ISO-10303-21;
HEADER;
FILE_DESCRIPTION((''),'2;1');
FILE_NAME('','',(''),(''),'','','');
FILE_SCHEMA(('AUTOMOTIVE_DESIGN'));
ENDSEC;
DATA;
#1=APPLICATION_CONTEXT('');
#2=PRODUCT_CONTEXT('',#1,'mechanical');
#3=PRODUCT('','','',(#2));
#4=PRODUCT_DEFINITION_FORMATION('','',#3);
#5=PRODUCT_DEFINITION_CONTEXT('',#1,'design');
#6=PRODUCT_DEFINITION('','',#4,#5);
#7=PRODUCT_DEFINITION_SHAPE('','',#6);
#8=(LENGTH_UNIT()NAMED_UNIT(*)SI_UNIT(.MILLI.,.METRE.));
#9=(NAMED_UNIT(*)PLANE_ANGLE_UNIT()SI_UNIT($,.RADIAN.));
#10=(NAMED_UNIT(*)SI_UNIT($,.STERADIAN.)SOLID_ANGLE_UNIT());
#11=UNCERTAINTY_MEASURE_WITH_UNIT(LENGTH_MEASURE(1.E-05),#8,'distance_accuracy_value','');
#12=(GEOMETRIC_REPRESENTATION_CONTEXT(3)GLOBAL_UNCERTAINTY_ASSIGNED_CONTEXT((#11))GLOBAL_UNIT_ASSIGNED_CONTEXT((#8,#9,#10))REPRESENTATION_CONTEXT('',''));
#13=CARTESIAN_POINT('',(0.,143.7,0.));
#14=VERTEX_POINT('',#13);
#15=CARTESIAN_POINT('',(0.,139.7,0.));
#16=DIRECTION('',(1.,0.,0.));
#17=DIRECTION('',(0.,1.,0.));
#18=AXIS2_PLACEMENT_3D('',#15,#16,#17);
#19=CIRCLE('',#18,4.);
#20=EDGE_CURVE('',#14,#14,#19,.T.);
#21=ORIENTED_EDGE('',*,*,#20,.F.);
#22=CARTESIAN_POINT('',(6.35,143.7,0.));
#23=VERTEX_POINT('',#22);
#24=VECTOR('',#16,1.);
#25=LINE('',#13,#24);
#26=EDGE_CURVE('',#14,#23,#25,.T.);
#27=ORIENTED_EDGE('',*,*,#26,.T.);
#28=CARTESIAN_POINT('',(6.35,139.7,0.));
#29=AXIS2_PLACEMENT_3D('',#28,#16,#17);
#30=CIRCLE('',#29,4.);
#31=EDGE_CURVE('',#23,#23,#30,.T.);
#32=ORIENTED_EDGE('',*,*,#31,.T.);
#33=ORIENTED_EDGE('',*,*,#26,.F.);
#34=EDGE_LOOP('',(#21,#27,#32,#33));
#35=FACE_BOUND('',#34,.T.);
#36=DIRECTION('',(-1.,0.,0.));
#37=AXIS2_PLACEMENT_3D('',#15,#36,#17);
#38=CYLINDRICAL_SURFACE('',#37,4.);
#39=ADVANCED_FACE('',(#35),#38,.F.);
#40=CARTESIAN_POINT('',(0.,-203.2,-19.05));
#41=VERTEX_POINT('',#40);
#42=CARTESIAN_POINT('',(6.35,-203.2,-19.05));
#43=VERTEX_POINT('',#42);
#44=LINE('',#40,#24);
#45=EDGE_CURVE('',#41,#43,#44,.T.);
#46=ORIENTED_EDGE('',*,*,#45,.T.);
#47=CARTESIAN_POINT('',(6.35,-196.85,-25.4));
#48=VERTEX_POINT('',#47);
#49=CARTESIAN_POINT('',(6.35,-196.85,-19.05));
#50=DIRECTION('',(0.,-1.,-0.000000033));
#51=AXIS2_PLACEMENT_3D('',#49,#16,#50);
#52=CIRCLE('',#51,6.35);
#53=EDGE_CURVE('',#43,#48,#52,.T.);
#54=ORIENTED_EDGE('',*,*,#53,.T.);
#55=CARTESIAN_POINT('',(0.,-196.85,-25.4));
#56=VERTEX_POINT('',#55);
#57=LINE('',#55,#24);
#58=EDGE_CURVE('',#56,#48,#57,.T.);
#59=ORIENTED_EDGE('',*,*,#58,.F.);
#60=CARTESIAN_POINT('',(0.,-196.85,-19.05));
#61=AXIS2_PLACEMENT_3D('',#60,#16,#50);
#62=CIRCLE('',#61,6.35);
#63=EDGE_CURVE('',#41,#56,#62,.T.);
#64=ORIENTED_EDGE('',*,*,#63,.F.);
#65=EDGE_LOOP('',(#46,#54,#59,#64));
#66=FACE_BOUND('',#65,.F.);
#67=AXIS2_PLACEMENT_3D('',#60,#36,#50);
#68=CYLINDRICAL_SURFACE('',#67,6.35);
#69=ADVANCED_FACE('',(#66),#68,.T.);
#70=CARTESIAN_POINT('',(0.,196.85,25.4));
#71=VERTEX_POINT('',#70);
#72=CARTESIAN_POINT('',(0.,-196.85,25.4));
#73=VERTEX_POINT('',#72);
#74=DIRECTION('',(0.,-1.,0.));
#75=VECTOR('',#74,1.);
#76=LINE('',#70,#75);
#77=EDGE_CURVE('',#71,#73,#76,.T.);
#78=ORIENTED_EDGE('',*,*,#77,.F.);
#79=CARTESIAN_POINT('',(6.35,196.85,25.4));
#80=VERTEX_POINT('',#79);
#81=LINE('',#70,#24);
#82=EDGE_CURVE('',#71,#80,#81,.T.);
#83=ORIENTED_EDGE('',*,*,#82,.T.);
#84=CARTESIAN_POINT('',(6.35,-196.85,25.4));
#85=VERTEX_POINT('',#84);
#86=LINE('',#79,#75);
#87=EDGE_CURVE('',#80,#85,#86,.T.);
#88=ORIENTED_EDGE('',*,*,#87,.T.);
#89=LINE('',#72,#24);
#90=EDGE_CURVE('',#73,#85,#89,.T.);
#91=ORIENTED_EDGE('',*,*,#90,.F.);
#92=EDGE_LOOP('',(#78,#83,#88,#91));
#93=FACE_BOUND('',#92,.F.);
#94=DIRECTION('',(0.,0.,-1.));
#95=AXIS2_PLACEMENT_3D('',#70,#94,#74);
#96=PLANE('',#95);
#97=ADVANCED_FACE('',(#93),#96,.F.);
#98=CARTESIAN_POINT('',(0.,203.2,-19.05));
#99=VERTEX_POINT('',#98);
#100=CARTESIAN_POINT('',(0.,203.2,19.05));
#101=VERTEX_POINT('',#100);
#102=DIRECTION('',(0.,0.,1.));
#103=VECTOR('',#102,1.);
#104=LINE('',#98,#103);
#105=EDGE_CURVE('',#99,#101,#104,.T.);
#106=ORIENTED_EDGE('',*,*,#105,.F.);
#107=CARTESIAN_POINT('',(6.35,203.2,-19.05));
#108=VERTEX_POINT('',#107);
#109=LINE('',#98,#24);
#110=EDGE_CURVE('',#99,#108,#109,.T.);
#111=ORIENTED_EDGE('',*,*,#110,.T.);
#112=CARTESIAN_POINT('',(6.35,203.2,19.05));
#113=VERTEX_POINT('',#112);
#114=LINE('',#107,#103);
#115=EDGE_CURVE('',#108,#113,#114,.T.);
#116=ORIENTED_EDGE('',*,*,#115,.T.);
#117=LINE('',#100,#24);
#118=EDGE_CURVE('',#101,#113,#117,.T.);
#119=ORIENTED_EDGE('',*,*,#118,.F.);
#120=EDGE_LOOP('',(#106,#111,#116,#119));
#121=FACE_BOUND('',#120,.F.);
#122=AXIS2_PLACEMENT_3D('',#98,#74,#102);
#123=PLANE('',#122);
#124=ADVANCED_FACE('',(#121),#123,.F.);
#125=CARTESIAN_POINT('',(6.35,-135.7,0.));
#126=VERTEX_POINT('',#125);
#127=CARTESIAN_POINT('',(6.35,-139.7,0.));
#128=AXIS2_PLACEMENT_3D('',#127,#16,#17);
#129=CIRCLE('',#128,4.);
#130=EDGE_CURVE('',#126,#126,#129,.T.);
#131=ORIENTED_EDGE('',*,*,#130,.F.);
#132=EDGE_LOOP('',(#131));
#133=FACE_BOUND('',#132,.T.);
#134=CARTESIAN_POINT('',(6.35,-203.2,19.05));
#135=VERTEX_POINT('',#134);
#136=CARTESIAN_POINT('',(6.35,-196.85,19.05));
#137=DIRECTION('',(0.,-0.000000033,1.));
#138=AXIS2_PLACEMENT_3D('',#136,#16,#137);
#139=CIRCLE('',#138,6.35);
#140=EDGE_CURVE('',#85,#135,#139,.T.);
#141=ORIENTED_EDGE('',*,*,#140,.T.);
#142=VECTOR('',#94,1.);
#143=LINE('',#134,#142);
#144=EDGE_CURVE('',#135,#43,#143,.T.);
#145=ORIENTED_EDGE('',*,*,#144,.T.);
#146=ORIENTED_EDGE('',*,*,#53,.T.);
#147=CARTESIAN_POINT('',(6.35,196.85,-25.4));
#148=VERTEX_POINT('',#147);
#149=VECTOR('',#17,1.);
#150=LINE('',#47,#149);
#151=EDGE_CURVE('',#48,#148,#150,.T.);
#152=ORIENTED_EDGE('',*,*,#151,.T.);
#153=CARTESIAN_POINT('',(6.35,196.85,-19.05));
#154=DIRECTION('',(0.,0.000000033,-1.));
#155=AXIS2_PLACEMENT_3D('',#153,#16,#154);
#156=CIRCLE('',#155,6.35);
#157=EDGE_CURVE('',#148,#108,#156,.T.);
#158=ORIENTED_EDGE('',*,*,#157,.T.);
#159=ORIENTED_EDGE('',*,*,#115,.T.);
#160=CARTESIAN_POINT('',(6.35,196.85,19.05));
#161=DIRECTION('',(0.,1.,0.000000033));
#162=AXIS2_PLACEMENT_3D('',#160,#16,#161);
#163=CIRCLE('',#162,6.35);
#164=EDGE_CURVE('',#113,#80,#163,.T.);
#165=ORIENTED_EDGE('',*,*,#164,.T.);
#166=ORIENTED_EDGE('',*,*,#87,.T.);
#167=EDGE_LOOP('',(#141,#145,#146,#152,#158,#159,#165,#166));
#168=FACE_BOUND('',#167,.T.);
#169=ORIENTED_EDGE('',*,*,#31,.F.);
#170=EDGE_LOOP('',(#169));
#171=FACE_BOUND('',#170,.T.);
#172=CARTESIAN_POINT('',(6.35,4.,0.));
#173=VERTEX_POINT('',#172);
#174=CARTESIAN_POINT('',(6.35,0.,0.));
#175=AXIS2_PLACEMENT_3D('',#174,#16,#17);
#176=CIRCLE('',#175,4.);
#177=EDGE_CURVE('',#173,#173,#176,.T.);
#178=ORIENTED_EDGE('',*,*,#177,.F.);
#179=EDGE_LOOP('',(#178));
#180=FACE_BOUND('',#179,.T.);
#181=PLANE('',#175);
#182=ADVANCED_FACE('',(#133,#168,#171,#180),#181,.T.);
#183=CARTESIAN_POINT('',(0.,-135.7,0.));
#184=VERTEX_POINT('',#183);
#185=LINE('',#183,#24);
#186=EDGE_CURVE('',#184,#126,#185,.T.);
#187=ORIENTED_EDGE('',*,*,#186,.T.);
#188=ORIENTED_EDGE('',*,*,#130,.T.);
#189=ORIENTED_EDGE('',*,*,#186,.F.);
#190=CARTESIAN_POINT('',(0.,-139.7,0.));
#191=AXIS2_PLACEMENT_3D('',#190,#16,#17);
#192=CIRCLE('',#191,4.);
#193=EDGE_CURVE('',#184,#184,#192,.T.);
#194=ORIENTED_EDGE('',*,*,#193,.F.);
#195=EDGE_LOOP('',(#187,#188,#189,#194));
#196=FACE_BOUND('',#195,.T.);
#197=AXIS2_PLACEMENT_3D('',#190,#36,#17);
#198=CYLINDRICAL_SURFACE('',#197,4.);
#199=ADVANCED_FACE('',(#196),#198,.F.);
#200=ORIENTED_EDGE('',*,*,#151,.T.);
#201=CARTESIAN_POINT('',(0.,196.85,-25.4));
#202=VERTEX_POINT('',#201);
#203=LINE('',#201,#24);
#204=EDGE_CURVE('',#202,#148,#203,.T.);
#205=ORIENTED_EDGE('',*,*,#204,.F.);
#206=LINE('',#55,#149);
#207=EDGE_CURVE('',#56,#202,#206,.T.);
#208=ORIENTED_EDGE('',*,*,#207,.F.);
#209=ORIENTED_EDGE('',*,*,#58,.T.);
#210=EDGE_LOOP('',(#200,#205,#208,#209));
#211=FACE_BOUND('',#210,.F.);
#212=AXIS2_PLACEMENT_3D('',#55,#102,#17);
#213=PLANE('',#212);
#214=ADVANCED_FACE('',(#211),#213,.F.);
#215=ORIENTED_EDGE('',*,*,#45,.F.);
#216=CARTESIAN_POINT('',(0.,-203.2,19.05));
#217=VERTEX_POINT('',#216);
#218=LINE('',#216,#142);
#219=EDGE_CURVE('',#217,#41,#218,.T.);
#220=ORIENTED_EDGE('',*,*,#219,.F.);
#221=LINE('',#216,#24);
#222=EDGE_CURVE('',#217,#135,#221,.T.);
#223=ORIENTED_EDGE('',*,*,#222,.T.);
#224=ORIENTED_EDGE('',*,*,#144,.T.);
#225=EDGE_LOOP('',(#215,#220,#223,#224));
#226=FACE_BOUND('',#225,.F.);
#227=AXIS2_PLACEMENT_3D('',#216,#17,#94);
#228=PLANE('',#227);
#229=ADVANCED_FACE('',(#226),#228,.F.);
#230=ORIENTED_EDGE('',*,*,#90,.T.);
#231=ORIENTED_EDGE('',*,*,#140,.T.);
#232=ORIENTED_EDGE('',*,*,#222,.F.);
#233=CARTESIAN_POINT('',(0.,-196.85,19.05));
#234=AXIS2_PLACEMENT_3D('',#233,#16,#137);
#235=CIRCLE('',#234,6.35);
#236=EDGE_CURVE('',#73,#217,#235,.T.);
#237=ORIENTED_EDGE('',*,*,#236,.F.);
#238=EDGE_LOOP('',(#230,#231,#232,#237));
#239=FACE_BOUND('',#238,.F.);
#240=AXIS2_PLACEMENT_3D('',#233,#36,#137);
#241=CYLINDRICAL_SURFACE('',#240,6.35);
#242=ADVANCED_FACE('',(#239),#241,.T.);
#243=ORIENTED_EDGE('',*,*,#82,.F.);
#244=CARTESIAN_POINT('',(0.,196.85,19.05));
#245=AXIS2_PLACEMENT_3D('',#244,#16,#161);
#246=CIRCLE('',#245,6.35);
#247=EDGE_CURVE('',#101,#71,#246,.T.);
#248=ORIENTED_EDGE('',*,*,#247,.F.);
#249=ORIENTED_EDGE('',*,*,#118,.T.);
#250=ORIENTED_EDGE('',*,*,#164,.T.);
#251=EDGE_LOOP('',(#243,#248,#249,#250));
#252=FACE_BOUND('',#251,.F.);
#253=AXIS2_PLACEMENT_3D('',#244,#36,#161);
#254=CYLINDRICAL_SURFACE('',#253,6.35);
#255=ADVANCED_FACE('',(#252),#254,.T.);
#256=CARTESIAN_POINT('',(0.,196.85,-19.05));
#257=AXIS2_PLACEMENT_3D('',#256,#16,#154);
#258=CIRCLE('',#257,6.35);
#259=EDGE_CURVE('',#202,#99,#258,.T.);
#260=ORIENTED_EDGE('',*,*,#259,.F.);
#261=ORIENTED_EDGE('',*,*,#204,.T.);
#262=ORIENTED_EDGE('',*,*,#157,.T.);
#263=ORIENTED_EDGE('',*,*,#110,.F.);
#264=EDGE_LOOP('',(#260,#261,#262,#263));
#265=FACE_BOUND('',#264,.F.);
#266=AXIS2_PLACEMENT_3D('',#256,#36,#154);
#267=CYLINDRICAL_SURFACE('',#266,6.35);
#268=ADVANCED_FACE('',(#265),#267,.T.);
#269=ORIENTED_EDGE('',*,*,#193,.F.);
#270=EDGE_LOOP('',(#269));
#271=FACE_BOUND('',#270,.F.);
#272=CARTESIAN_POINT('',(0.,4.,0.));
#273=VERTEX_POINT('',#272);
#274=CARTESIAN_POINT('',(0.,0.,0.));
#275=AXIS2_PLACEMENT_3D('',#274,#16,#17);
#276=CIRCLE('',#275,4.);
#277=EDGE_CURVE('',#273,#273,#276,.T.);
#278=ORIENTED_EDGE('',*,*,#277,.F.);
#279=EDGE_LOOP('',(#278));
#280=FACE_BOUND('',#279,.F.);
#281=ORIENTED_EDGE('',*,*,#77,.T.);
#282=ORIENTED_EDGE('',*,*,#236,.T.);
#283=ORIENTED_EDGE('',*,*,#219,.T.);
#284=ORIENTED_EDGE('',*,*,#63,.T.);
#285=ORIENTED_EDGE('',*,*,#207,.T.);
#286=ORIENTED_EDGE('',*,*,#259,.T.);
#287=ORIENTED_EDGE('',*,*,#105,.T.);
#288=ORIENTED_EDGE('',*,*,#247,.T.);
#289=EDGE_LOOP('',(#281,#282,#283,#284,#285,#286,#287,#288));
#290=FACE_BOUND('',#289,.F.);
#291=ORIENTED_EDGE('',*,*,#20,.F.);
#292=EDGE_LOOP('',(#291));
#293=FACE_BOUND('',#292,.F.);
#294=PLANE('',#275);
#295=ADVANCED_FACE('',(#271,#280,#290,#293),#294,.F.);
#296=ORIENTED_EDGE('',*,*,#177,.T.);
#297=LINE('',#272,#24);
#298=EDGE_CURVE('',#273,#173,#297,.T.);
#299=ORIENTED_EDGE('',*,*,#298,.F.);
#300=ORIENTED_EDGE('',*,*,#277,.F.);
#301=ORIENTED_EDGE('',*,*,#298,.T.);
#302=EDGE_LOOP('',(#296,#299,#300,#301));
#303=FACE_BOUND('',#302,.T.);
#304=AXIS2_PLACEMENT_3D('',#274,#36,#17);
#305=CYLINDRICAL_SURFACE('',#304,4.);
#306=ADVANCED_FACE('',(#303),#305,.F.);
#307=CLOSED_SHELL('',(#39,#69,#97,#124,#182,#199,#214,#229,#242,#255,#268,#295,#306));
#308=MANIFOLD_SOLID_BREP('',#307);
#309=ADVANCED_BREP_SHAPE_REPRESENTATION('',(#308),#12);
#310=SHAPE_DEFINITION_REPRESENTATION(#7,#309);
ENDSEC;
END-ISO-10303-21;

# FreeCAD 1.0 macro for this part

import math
import FreeCAD as App
import Part
import Sketcher
from FreeCAD import Vector
Q = App.Units.Quantity

doc = App.newDocument("Part")
body = doc.addObject("PartDesign::Body", "Body")

sketch1 = doc.addObject("Sketcher::SketchObject", "Sketch")
body.addObject(sketch1)
sketch1.AttachmentSupport = (doc.YZ_Plane, [""])
sketch1.MapMode = "FlatFace"
sketch1.addGeometry(Part.ArcOfCircle(Part.Circle(Vector(196.8, 19, 0), Vector(0, 0, 1), 6.4), math.radians(0), math.radians(90)), False)
sketch1.addGeometry(Part.LineSegment(Vector(196.8, 25.4, 0), Vector(-196.8, 25.4, 0)), False)
sketch1.addGeometry(Part.ArcOfCircle(Part.Circle(Vector(-196.8, 19, 0), Vector(0, 0, 1), 6.4), math.radians(90), math.radians(180)), False)
sketch1.addGeometry(Part.LineSegment(Vector(-203.2, 19.1, 0), Vector(-203.2, -19.1, 0)), False)
sketch1.addGeometry(Part.ArcOfCircle(Part.Circle(Vector(-196.8, -19, 0), Vector(0, 0, 1), 6.4), math.radians(-180), math.radians(-90)), False)
sketch1.addGeometry(Part.LineSegment(Vector(-196.8, -25.4, 0), Vector(196.8, -25.4, 0)), False)
sketch1.addGeometry(Part.ArcOfCircle(Part.Circle(Vector(196.8, -19, 0), Vector(0, 0, 1), 6.4), math.radians(-90), math.radians(0)), False)
sketch1.addGeometry(Part.LineSegment(Vector(203.2, -19.1, 0), Vector(203.2, 19.1, 0)), False)
sketch1.addGeometry(Part.Circle(Vector(-139.7, 0, 0), Vector(0, 0, 1), 4), False)
sketch1.addGeometry(Part.Circle(Vector(0, 0, 0), Vector(0, 0, 1), 4), False)
sketch1.addGeometry(Part.Circle(Vector(139.7, 0, 0), Vector(0, 0, 1), 4), False)
sketch1.addConstraint(Sketcher.Constraint("Tangent", 0, 2, 1, 1))
sketch1.addConstraint(Sketcher.Constraint("Tangent", 1, 2, 2, 1))
sketch1.addConstraint(Sketcher.Constraint("Tangent", 2, 2, 3, 1))
sketch1.addConstraint(Sketcher.Constraint("Tangent", 3, 2, 4, 1))
sketch1.addConstraint(Sketcher.Constraint("Tangent", 4, 2, 5, 1))
sketch1.addConstraint(Sketcher.Constraint("Tangent", 5, 2, 6, 1))
sketch1.addConstraint(Sketcher.Constraint("Tangent", 6, 2, 7, 1))
sketch1.addConstraint(Sketcher.Constraint("Tangent", 7, 2, 0, 1))
sketch1.addConstraint(Sketcher.Constraint("Horizontal", 1))
sketch1.addConstraint(Sketcher.Constraint("Vertical", 3))
sketch1.addConstraint(Sketcher.Constraint("Horizontal", 5))
sketch1.addConstraint(Sketcher.Constraint("Vertical", 7))
sketch1.addConstraint(Sketcher.Constraint("Coincident", 9, 3, -1, 1))
sketch1.addConstraint(Sketcher.Constraint("Equal", 0, 2))
sketch1.addConstraint(Sketcher.Constraint("Equal", 2, 4))
sketch1.addConstraint(Sketcher.Constraint("Equal", 4, 6))
sketch1.addConstraint(Sketcher.Constraint("Equal", 8, 9))
sketch1.addConstraint(Sketcher.Constraint("Equal", 9, 10))
sketch1.addConstraint(Sketcher.Constraint("Symmetric", 0, 3, 4, 3, -1, 1))
sketch1.addConstraint(Sketcher.Constraint("Symmetric", 8, 3, 10, 3, -1, 1))
sketch1.addConstraint(Sketcher.Constraint("PointOnObject", 8, 3, -1))
sketch1.addConstraint(Sketcher.Constraint("Radius", 0, Q("0.25 in")))
sketch1.addConstraint(Sketcher.Constraint("DistanceX", 1, 2, 1, 1, Q("15.5 in")))
sketch1.addConstraint(Sketcher.Constraint("DistanceY", 3, 2, 3, 1, Q("1.5 in")))
sketch1.addConstraint(Sketcher.Constraint("DistanceX", 8, 3, 10, 3, Q("11 in")))
sketch1.addConstraint(Sketcher.Constraint("Diameter", 8, Q("8 mm")))
pad1 = doc.addObject("PartDesign::Pad", "Pad")
body.addObject(pad1)
pad1.Profile = sketch1
pad1.Length = Q("0.25 in")

doc.recompute()
